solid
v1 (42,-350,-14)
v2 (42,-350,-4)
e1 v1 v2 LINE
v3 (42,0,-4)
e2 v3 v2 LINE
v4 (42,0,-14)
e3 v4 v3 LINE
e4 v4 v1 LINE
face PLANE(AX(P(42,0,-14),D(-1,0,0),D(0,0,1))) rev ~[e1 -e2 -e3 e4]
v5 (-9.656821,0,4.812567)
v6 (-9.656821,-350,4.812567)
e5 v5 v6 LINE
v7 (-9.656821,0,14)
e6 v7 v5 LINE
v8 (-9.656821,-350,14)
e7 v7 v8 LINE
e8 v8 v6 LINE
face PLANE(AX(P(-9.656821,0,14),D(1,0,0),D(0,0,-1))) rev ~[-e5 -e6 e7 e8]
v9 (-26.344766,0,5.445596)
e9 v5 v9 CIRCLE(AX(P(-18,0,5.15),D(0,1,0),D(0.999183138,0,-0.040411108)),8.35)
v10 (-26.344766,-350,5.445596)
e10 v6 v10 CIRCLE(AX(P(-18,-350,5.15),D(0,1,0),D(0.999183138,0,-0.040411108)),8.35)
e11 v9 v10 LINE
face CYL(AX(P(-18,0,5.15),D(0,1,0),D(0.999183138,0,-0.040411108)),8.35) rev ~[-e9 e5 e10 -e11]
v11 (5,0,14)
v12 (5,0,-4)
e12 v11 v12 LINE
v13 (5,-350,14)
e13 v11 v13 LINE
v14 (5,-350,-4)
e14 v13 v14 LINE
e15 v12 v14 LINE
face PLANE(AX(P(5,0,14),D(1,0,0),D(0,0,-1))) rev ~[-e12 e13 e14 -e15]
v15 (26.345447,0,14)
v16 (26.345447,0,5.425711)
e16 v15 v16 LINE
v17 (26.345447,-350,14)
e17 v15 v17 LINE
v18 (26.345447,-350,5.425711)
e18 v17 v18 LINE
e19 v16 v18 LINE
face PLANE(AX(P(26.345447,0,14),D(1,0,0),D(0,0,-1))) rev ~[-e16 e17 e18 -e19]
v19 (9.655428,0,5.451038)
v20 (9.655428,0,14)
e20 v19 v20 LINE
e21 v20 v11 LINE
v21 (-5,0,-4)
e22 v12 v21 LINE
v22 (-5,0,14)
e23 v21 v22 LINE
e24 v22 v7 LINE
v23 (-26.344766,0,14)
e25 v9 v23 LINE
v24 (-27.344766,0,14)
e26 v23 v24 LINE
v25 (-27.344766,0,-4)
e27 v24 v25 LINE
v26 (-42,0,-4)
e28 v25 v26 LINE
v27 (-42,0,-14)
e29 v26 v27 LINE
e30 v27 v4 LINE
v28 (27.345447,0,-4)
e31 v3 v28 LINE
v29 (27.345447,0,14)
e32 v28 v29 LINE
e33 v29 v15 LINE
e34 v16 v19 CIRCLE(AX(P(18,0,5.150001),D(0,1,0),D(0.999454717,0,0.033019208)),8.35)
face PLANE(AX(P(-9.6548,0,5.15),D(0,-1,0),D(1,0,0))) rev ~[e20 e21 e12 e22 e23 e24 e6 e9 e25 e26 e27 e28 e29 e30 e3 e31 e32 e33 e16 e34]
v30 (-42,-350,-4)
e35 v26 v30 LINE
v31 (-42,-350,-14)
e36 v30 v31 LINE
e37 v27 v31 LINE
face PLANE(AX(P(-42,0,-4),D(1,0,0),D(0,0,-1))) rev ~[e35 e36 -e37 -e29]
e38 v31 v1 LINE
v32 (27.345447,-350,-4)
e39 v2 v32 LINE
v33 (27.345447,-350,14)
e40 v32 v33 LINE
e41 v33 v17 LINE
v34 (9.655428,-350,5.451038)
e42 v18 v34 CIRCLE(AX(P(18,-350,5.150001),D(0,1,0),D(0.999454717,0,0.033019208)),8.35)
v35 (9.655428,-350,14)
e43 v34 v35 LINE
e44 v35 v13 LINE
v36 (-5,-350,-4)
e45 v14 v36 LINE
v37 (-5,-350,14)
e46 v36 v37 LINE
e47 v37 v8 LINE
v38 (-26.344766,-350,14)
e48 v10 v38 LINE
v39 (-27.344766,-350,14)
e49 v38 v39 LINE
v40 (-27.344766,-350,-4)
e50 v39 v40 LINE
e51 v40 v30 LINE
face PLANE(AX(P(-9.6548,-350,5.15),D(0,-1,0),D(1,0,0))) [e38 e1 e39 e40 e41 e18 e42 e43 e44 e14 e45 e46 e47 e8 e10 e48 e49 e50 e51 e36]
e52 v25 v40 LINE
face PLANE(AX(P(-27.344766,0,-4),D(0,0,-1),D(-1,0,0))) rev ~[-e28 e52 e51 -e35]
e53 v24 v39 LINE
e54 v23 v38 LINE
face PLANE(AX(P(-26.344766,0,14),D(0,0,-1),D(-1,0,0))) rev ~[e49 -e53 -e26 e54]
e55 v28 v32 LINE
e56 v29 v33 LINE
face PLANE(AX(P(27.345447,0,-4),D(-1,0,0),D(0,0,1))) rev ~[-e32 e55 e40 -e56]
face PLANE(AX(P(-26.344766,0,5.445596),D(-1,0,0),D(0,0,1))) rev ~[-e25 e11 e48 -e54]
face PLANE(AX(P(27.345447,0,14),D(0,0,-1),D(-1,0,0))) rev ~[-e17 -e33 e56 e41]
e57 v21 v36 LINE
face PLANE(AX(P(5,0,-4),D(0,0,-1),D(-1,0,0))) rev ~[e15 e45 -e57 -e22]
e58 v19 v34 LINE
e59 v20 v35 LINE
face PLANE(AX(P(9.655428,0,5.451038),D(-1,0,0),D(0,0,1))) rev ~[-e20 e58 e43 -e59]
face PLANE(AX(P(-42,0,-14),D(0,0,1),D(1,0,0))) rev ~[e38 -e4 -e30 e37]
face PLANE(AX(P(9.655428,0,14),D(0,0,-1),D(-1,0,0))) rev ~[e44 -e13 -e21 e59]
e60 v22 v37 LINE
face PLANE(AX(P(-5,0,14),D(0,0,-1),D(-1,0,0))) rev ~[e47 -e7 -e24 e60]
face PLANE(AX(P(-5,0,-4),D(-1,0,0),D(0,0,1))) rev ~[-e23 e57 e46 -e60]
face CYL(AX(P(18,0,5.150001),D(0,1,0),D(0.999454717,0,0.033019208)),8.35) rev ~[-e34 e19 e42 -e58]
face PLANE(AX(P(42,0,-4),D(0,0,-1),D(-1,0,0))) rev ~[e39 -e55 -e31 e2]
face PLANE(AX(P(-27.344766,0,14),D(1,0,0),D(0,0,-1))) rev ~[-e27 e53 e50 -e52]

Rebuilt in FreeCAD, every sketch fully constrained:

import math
import FreeCAD as App
import Part
import Sketcher
from FreeCAD import Vector

doc = App.newDocument("Part")
body = doc.addObject("PartDesign::Body", "Body")

# Sketch on XZ plane
sketch1 = body.newObject("Sketcher::SketchObject", "Sketch")
sketch1.AttachmentSupport = (doc.getObject("XZ_Plane"), [""])
sketch1.MapMode = "FlatFace"
sketch1.addGeometry(Part.ArcOfCircle(Part.Circle(Vector(-18, 5.1, 0), Vector(0, 0, 1), 8.3), math.radians(178), math.radians(358)), False)
sketch1.addGeometry(Part.LineSegment(Vector(-26.3, 5.4, 0), Vector(-26.3, 14, 0)), False)
sketch1.addGeometry(Part.LineSegment(Vector(-26.3, 14, 0), Vector(-27.3, 14, 0)), False)
sketch1.addGeometry(Part.LineSegment(Vector(-27.3, 14, 0), Vector(-27.3, -4, 0)), False)
sketch1.addGeometry(Part.LineSegment(Vector(-27.3, -4, 0), Vector(-42, -4, 0)), False)
sketch1.addGeometry(Part.LineSegment(Vector(-42, -4, 0), Vector(-42, -14, 0)), False)
sketch1.addGeometry(Part.LineSegment(Vector(-42, -14, 0), Vector(42, -14, 0)), False)
sketch1.addGeometry(Part.LineSegment(Vector(42, -14, 0), Vector(42, -4, 0)), False)
sketch1.addGeometry(Part.LineSegment(Vector(42, -4, 0), Vector(27.3, -4, 0)), False)
sketch1.addGeometry(Part.LineSegment(Vector(27.3, -4, 0), Vector(27.3, 14, 0)), False)
sketch1.addGeometry(Part.LineSegment(Vector(27.3, 14, 0), Vector(26.3, 14, 0)), False)
sketch1.addGeometry(Part.LineSegment(Vector(26.3, 14, 0), Vector(26.3, 5.4, 0)), False)
sketch1.addGeometry(Part.ArcOfCircle(Part.Circle(Vector(18, 5.2, 0), Vector(0, 0, 1), 8.4), math.radians(178), math.radians(362)), False)
sketch1.addGeometry(Part.LineSegment(Vector(9.7, 5.5, 0), Vector(9.7, 14, 0)), False)
sketch1.addGeometry(Part.LineSegment(Vector(9.7, 14, 0), Vector(5, 14, 0)), False)
sketch1.addGeometry(Part.LineSegment(Vector(5, 14, 0), Vector(5, -4, 0)), False)
sketch1.addGeometry(Part.LineSegment(Vector(5, -4, 0), Vector(-5, -4, 0)), False)
sketch1.addGeometry(Part.LineSegment(Vector(-5, -4, 0), Vector(-5, 14, 0)), False)
sketch1.addGeometry(Part.LineSegment(Vector(-5, 14, 0), Vector(-9.7, 14, 0)), False)
sketch1.addGeometry(Part.LineSegment(Vector(-9.7, 14, 0), Vector(-9.7, 4.8, 0)), False)
sketch1.addConstraint(Sketcher.Constraint("Coincident", 0, 1, 1, 1))
sketch1.addConstraint(Sketcher.Constraint("Coincident", 1, 2, 2, 1))
sketch1.addConstraint(Sketcher.Constraint("Coincident", 2, 2, 3, 1))
sketch1.addConstraint(Sketcher.Constraint("Coincident", 3, 2, 4, 1))
sketch1.addConstraint(Sketcher.Constraint("Coincident", 4, 2, 5, 1))
sketch1.addConstraint(Sketcher.Constraint("Coincident", 5, 2, 6, 1))
sketch1.addConstraint(Sketcher.Constraint("Coincident", 6, 2, 7, 1))
sketch1.addConstraint(Sketcher.Constraint("Coincident", 7, 2, 8, 1))
sketch1.addConstraint(Sketcher.Constraint("Coincident", 8, 2, 9, 1))
sketch1.addConstraint(Sketcher.Constraint("Coincident", 9, 2, 10, 1))
sketch1.addConstraint(Sketcher.Constraint("Coincident", 10, 2, 11, 1))
sketch1.addConstraint(Sketcher.Constraint("Coincident", 11, 2, 12, 2))
sketch1.addConstraint(Sketcher.Constraint("Coincident", 12, 1, 13, 1))
sketch1.addConstraint(Sketcher.Constraint("Coincident", 13, 2, 14, 1))
sketch1.addConstraint(Sketcher.Constraint("Coincident", 14, 2, 15, 1))
sketch1.addConstraint(Sketcher.Constraint("Coincident", 15, 2, 16, 1))
sketch1.addConstraint(Sketcher.Constraint("Coincident", 16, 2, 17, 1))
sketch1.addConstraint(Sketcher.Constraint("Coincident", 17, 2, 18, 1))
sketch1.addConstraint(Sketcher.Constraint("Coincident", 18, 2, 19, 1))
sketch1.addConstraint(Sketcher.Constraint("Coincident", 19, 2, 0, 2))
sketch1.addConstraint(Sketcher.Constraint("Vertical", 1))
sketch1.addConstraint(Sketcher.Constraint("Horizontal", 2))
sketch1.addConstraint(Sketcher.Constraint("Vertical", 3))
sketch1.addConstraint(Sketcher.Constraint("Horizontal", 4))
sketch1.addConstraint(Sketcher.Constraint("Vertical", 5))
sketch1.addConstraint(Sketcher.Constraint("Horizontal", 6))
sketch1.addConstraint(Sketcher.Constraint("Vertical", 7))
sketch1.addConstraint(Sketcher.Constraint("Horizontal", 8))
sketch1.addConstraint(Sketcher.Constraint("Vertical", 9))
sketch1.addConstraint(Sketcher.Constraint("Horizontal", 10))
sketch1.addConstraint(Sketcher.Constraint("Vertical", 11))
sketch1.addConstraint(Sketcher.Constraint("Vertical", 13))
sketch1.addConstraint(Sketcher.Constraint("Horizontal", 14))
sketch1.addConstraint(Sketcher.Constraint("Vertical", 15))
sketch1.addConstraint(Sketcher.Constraint("Horizontal", 16))
sketch1.addConstraint(Sketcher.Constraint("Vertical", 17))
sketch1.addConstraint(Sketcher.Constraint("Horizontal", 18))
sketch1.addConstraint(Sketcher.Constraint("Vertical", 19))
sketch1.addConstraint(Sketcher.Constraint("Equal", 0, 12))
sketch1.addConstraint(Sketcher.Constraint("Symmetric", 0, 3, 12, 3, -2))
sketch1.addConstraint(Sketcher.Constraint("Symmetric", 4, 2, 7, 2, -2))
sketch1.addConstraint(Sketcher.Constraint("Symmetric", 14, 2, 17, 2, -2))
sketch1.addConstraint(Sketcher.Constraint("Horizontal", 2, 2, 9, 2))
sketch1.addConstraint(Sketcher.Constraint("Horizontal", 10, 2, 13, 2))
sketch1.addConstraint(Sketcher.Constraint("Horizontal", 8, 2, 15, 2))
sketch1.addConstraint(Sketcher.Constraint("Equal", 2, 10))
sketch1.addConstraint(Sketcher.Constraint("Equal", 16, 5))
sketch1.addConstraint(Sketcher.Constraint("DistanceX", 2, 2, 2, 1, 1.0))
sketch1.addConstraint(Sketcher.Constraint("DistanceX", 6, 1, 6, 2, 84.0))
sketch1.addConstraint(Sketcher.Constraint("DistanceX", 16, 2, 16, 1, 10.0))
sketch1.addConstraint(Sketcher.Constraint("DistanceY", 3, 2, 3, 1, 18.0))
sketch1.addConstraint(Sketcher.Constraint("Radius", 0, 8.35))
sketch1.addConstraint(Sketcher.Constraint("DistanceX", 0, 3, -1, 1, 18.0))
sketch1.addConstraint(Sketcher.Constraint("DistanceY", -1, 1, 1, 2, 14.0))
sketch1.addConstraint(Sketcher.Constraint("DistanceY", -1, 1, 0, 3, 5.15))
sketch1.addConstraint(Sketcher.Constraint("DistanceX", 14, 2, 14, 1, 4.655428))
sketch1.addConstraint(Sketcher.Constraint("DistanceX", 18, 2, 18, 1, 4.656821))
sketch1.addConstraint(Sketcher.Constraint("DistanceY", 11, 2, 11, 1, 8.574289))
sketch1.addConstraint(Sketcher.Constraint("DistanceX", 4, 2, 4, 1, 14.655234))
pad1 = body.newObject("PartDesign::Pad", "Pad")
pad1.Profile = sketch1
pad1.Length = 350

doc.recompute()
